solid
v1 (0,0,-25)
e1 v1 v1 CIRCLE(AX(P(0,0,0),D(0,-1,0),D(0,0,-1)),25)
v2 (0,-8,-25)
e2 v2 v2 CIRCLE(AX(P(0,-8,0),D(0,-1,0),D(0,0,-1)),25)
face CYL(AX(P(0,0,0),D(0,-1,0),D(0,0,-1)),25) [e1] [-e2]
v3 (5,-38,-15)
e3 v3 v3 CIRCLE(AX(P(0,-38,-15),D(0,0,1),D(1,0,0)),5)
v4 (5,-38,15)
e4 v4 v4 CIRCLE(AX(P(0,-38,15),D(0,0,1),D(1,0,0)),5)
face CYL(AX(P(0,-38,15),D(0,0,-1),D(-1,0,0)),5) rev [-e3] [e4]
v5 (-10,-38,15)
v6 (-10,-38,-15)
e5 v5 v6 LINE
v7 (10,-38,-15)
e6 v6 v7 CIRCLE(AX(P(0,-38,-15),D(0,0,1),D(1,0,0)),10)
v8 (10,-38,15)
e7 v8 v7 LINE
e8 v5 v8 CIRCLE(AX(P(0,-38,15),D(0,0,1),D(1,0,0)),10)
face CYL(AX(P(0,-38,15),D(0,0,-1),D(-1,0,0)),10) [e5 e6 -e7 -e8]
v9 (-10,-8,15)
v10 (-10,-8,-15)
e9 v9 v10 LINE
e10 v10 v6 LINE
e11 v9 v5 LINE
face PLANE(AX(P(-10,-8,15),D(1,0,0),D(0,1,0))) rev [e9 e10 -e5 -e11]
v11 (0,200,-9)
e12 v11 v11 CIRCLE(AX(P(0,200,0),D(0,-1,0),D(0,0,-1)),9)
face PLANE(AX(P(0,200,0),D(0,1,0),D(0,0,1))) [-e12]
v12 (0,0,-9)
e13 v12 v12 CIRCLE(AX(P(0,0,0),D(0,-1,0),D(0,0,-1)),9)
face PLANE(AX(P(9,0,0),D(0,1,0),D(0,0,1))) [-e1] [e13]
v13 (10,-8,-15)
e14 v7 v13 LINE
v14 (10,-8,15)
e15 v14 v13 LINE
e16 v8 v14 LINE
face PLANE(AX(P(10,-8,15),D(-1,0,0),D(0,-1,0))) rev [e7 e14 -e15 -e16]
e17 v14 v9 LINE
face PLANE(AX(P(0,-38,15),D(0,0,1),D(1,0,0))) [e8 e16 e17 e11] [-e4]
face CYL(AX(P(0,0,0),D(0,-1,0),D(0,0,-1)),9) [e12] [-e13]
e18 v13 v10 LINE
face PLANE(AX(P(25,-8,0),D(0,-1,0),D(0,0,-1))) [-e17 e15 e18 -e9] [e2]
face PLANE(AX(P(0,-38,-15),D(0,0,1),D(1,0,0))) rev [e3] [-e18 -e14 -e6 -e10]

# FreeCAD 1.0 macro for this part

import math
import FreeCAD as App
import Part
import Sketcher
from FreeCAD import Vector


def add_polygon(sketch, points):
    """Adds a closed chain of lines whose ends are joined by coincident constraints."""
    first, n = sketch.GeometryCount, len(points)
    for a, b in zip(points, points[1:] + points[:1]):
        sketch.addGeometry(Part.LineSegment(App.Vector(*a, 0), App.Vector(*b, 0)), False)
    for i in range(n):
        sketch.addConstraint(Sketcher.Constraint("Coincident", first + i, 2, first + (i + 1) % n, 1))

doc = App.newDocument("Part")
body = doc.addObject("PartDesign::Body", "Body")

# Sketch on XY plane
sketch1 = body.newObject("Sketcher::SketchObject", "Sketch")
sketch1.AttachmentSupport = (doc.getObject("XY_Plane"), [""])
sketch1.MapMode = "FlatFace"
add_polygon(sketch1, [(9, 200), (0, 200), (0, -8), (25, -8), (25, 0), (9, 0)])  # lines 0-5
sketch1.addConstraint(Sketcher.Constraint("Horizontal", 0))
sketch1.addConstraint(Sketcher.Constraint("Vertical", 1))
sketch1.addConstraint(Sketcher.Constraint("Horizontal", 2))
sketch1.addConstraint(Sketcher.Constraint("Vertical", 3))
sketch1.addConstraint(Sketcher.Constraint("Horizontal", 4))
sketch1.addConstraint(Sketcher.Constraint("Vertical", 5))
sketch1.addConstraint(Sketcher.Constraint("PointOnObject", 0, 2, -2))
sketch1.addConstraint(Sketcher.Constraint("PointOnObject", 3, 2, -1))
sketch1.addConstraint(Sketcher.Constraint("DistanceX", 0, 2, 0, 1, 9.0))
sketch1.addConstraint(Sketcher.Constraint("DistanceX", 2, 1, 2, 2, 25.0))
sketch1.addConstraint(Sketcher.Constraint("DistanceY", 1, 2, 1, 1, 208.0))
sketch1.addConstraint(Sketcher.Constraint("DistanceY", 3, 1, 3, 2, 8.0))
revolution = body.newObject("PartDesign::Revolution", "Revolution")
revolution.Profile = sketch1
revolution.ReferenceAxis = (sketch1, ["V_Axis"])
revolution.Angle = 360

# Sketch on XY plane
sketch2 = body.newObject("Sketcher::SketchObject", "Sketch001")
sketch2.AttachmentSupport = (doc.getObject("XY_Plane"), [""])
sketch2.MapMode = "FlatFace"
sketch2.addGeometry(Part.LineSegment(Vector(10, -8, 0), Vector(-10, -8, 0)), False)
sketch2.addGeometry(Part.LineSegment(Vector(-10, -8, 0), Vector(-10, -38, 0)), False)
sketch2.addGeometry(Part.ArcOfCircle(Part.Circle(Vector(0, -38, 0), Vector(0, 0, 1), 10), math.radians(180), math.radians(360)), False)
sketch2.addGeometry(Part.LineSegment(Vector(10, -38, 0), Vector(10, -8, 0)), False)
sketch2.addGeometry(Part.Circle(Vector(0, -38, 0), Vector(0, 0, 1), 5), False)
sketch2.addConstraint(Sketcher.Constraint("Coincident", 0, 2, 1, 1))
sketch2.addConstraint(Sketcher.Constraint("Tangent", 1, 2, 2, 1))
sketch2.addConstraint(Sketcher.Constraint("Tangent", 2, 2, 3, 1))
sketch2.addConstraint(Sketcher.Constraint("Coincident", 3, 2, 0, 1))
sketch2.addConstraint(Sketcher.Constraint("Horizontal", 0))
sketch2.addConstraint(Sketcher.Constraint("Vertical", 1))
sketch2.addConstraint(Sketcher.Constraint("Vertical", 3))
sketch2.addConstraint(Sketcher.Constraint("Coincident", 4, 3, 2, 3))
sketch2.addConstraint(Sketcher.Constraint("PointOnObject", 2, 3, -2))
sketch2.addConstraint(Sketcher.Constraint("Diameter", 4, 10.0))
sketch2.addConstraint(Sketcher.Constraint("Radius", 2, 10.0))
sketch2.addConstraint(Sketcher.Constraint("DistanceY", 1, 2, 1, 1, 30.0))
sketch2.addConstraint(Sketcher.Constraint("DistanceY", 2, 3, -1, 1, 38.0))
pad1 = body.newObject("PartDesign::Pad", "Pad")
pad1.Profile = sketch2
pad1.Length = 30
pad1.Midplane = True

doc.recompute()
